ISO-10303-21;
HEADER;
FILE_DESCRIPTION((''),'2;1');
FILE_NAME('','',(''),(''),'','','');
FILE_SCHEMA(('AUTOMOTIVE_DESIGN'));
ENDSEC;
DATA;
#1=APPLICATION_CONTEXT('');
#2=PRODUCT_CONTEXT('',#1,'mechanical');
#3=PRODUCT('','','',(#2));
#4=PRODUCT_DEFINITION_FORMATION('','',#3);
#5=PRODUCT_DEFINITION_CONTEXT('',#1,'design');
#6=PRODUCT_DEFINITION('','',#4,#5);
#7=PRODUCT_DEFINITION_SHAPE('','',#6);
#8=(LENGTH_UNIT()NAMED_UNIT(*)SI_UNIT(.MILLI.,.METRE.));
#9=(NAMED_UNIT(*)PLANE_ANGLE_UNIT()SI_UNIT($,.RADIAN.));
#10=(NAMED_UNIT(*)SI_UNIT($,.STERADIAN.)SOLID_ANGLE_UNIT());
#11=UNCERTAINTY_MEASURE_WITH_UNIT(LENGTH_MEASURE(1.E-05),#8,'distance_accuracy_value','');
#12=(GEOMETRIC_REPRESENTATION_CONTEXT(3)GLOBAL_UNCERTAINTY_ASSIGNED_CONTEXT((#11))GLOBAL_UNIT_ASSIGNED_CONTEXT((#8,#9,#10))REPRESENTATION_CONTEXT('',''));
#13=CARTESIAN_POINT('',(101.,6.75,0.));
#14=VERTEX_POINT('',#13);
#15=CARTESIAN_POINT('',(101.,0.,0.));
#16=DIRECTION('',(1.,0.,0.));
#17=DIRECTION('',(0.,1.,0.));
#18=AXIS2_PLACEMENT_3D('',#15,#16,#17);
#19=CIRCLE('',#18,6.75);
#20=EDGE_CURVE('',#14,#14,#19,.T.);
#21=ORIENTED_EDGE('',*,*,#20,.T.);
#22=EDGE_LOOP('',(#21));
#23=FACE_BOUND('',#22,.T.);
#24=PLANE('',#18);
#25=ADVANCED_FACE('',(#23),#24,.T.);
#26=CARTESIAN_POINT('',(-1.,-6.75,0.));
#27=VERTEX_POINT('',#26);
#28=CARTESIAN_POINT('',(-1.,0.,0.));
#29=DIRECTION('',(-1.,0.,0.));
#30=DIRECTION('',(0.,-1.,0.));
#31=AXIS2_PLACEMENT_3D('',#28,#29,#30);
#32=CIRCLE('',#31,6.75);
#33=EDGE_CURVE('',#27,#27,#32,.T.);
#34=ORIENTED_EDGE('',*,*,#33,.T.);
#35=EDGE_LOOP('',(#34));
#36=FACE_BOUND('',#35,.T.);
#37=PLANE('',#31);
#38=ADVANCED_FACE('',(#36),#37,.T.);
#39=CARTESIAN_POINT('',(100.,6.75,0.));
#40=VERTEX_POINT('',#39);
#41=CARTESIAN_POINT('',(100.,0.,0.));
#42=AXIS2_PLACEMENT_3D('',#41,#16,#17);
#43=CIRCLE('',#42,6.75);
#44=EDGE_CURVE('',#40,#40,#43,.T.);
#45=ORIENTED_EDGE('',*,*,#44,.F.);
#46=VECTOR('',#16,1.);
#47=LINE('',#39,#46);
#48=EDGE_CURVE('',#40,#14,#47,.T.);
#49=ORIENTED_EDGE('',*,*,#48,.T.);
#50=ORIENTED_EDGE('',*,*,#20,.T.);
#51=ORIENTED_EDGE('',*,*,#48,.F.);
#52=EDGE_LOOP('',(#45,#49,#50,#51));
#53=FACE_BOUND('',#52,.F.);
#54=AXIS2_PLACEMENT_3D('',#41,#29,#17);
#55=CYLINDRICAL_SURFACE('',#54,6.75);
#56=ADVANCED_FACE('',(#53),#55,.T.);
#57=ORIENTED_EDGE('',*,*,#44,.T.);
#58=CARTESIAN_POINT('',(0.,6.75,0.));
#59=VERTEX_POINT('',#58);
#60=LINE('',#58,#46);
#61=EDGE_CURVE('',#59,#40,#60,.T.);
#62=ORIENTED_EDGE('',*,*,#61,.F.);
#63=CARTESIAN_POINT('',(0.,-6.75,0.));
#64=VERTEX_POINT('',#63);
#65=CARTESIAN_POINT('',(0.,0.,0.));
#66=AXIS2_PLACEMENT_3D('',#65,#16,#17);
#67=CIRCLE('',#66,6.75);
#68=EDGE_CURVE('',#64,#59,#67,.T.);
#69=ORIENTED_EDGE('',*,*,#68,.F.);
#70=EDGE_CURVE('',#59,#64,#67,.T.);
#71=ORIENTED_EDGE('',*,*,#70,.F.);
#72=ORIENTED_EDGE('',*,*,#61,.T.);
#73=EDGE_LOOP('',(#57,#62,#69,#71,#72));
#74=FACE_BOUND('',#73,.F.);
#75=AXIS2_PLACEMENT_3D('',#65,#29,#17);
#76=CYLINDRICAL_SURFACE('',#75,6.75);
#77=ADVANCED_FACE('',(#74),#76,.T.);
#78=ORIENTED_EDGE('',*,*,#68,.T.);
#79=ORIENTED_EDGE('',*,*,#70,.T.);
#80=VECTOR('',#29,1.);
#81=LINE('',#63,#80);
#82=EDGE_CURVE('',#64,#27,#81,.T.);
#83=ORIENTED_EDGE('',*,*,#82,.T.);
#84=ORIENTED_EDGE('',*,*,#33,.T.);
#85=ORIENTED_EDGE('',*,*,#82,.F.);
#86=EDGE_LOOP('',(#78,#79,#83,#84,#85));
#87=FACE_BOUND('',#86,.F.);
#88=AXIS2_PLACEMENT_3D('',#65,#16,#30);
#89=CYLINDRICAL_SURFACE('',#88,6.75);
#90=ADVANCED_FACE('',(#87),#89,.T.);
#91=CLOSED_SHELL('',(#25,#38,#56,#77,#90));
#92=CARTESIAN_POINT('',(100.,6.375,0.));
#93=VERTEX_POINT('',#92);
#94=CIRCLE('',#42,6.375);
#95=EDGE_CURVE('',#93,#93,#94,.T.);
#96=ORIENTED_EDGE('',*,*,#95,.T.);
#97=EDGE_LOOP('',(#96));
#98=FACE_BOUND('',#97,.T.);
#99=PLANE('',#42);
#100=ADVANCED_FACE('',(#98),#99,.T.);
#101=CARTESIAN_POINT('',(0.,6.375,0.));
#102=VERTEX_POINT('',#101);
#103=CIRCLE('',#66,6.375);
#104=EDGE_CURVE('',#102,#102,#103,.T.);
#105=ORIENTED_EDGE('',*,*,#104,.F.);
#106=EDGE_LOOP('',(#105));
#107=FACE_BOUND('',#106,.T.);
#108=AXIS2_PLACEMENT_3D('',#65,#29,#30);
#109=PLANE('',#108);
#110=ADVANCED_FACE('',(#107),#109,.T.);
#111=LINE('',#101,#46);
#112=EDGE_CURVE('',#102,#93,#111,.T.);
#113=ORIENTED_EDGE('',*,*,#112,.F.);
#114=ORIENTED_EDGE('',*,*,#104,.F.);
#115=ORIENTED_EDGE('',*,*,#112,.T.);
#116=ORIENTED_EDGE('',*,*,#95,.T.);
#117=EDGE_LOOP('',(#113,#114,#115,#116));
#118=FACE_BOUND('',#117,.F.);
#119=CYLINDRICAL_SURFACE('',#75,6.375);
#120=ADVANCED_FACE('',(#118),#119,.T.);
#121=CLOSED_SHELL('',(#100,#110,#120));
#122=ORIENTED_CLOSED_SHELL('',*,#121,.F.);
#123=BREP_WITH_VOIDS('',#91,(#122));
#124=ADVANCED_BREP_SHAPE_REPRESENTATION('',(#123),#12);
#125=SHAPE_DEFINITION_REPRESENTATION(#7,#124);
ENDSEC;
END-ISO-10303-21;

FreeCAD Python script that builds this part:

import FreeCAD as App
import Part
import Sketcher

V = App.Vector

doc = App.newDocument("Part")
body = doc.addObject("PartDesign::Body", "Body")

# Sketch on YZ plane
sketch1 = body.newObject("Sketcher::SketchObject", "Sketch")
sketch1.AttachmentSupport = (doc.getObject("YZ_Plane"), [""])
sketch1.MapMode = "FlatFace"
sketch1.addGeometry(Part.Circle(V(0, 0, 0), V(0, 0, 1), 7), False)
sketch1.addGeometry(Part.Circle(V(0, 0, 0), V(0, 0, 1), 6), False)
sketch1.addConstraint(Sketcher.Constraint("Coincident", 0, 3, -1, 1))
sketch1.addConstraint(Sketcher.Constraint("Coincident", 1, 3, -1, 1))
sketch1.addConstraint(Sketcher.Constraint("Diameter", 0, 13.5))
sketch1.addConstraint(Sketcher.Constraint("Diameter", 1, 12.75))
pad1 = body.newObject("PartDesign::Pad", "Pad")
pad1.Profile = sketch1
pad1.Length = 100

# Sketch on YZ plane
sketch2 = body.newObject("Sketcher::SketchObject", "Sketch001")
sketch2.AttachmentSupport = (doc.getObject("YZ_Plane"), [""])
sketch2.MapMode = "FlatFace"
sketch2.addGeometry(Part.Circle(V(0, 0, 0), V(0, 0, 1), 7), False)
sketch2.addConstraint(Sketcher.Constraint("Coincident", 0, 3, -1, 1))
sketch2.addConstraint(Sketcher.Constraint("Diameter", 0, 13.5))
pad2 = body.newObject("PartDesign::Pad", "Pad001")
pad2.Profile = sketch2
pad2.Length = 1
pad2.Reversed = True

# Sketch on YZ plane
sketch3 = body.newObject("Sketcher::SketchObject", "Sketch002")
sketch3.AttachmentSupport = (doc.getObject("YZ_Plane"), [""])
sketch3.MapMode = "FlatFace"
sketch3.AttachmentOffset = App.Placement(V(0, 0, 100), App.Rotation())
sketch3.addGeometry(Part.Circle(V(0, 0, 0), V(0, 0, 1), 7), False)
sketch3.addConstraint(Sketcher.Constraint("Coincident", 0, 3, -1, 1))
sketch3.addConstraint(Sketcher.Constraint("Diameter", 0, 13.5))
pad3 = body.newObject("PartDesign::Pad", "Pad002")
pad3.Profile = sketch3
pad3.Length = 1

doc.recompute()
